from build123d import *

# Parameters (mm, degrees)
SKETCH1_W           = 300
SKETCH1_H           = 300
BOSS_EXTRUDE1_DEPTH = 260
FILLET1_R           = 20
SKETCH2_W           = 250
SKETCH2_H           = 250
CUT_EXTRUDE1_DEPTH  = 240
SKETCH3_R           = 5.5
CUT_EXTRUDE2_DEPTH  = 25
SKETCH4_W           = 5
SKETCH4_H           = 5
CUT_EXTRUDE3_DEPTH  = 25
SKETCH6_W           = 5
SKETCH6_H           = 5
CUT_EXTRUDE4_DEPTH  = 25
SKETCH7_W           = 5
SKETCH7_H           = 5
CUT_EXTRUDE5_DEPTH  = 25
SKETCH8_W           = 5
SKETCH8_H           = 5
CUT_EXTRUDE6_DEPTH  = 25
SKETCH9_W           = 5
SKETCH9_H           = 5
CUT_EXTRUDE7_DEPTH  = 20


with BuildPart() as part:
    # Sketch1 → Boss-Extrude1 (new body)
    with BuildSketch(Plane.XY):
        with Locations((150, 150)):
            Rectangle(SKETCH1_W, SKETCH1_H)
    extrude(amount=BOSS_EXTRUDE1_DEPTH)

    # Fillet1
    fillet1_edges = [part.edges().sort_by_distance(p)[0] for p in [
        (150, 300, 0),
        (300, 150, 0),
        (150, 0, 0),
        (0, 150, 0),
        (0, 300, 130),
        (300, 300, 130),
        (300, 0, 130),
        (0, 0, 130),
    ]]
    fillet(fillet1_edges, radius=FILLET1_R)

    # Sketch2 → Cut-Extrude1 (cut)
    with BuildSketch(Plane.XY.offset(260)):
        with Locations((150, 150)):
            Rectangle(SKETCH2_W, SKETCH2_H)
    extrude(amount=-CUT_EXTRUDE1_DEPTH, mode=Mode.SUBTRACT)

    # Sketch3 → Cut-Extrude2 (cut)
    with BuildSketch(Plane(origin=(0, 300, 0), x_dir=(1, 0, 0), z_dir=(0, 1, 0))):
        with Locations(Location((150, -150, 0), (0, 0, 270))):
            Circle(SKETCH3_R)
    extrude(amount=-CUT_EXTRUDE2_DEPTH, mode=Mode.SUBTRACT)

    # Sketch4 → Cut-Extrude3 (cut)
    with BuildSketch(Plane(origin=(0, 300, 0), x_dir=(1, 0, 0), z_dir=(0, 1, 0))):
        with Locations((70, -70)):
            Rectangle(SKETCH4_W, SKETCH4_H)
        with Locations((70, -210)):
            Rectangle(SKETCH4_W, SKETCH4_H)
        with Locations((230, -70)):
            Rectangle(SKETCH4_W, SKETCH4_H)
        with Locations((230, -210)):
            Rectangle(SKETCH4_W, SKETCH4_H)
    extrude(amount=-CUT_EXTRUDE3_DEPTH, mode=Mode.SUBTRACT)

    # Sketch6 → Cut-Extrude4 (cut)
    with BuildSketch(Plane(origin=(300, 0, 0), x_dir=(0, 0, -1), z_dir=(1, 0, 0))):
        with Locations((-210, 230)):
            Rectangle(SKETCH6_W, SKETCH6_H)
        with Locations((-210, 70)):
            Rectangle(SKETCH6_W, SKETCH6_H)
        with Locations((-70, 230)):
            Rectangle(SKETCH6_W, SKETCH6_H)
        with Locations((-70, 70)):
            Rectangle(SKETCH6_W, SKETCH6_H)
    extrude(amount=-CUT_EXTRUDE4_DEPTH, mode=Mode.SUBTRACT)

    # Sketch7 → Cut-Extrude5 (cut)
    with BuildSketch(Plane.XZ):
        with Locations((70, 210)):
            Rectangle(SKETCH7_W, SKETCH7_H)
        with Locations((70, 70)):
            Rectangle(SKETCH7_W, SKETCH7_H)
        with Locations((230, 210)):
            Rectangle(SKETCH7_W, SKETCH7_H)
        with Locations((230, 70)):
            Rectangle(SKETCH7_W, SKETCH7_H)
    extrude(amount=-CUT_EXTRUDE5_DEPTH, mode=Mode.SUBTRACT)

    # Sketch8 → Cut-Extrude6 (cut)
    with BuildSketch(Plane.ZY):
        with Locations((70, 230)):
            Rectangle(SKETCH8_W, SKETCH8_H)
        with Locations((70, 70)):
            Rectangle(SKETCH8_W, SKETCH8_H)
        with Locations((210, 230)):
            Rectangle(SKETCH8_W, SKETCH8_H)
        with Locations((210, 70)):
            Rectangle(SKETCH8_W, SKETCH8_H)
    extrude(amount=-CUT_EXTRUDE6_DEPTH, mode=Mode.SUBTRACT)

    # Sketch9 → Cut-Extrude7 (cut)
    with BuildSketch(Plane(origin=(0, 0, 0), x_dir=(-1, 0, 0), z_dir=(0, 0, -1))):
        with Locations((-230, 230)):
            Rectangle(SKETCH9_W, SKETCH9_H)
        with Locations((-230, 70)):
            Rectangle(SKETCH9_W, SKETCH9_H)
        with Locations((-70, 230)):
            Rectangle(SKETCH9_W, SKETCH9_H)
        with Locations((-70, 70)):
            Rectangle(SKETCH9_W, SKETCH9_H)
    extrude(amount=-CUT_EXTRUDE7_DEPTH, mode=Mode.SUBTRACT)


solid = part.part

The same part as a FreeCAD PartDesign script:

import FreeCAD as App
import Part
import Sketcher

V = App.Vector


def edges_at(feature, points):
    """Names of the edges that pass closest to the given points."""
    edges = feature.Shape.Edges
    near = lambda p: min(range(len(edges)), key=lambda i: edges[i].distToShape(Part.Vertex(*p))[0])
    return sorted({f"Edge{near(p) + 1}" for p in points})

doc = App.newDocument("Part")
body = doc.addObject("PartDesign::Body", "Body")

# Sketch on XY plane
sketch1 = body.newObject("Sketcher::SketchObject", "Sketch")
sketch1.AttachmentSupport = (doc.getObject("XY_Plane"), [""])
sketch1.MapMode = "FlatFace"
sketch1.addGeometry([
    Part.LineSegment(V(0, 300, 0), V(0, 0, 0)),
    Part.LineSegment(V(0, 0, 0), V(300, 0, 0)),
    Part.LineSegment(V(300, 0, 0), V(300, 300, 0)),
    Part.LineSegment(V(300, 300, 0), V(0, 300, 0)),
], False)
sketch1.addConstraint([
    Sketcher.Constraint("Coincident", 0, 2, 1, 1),
    Sketcher.Constraint("Coincident", 1, 2, 2, 1),
    Sketcher.Constraint("Coincident", 2, 2, 3, 1),
    Sketcher.Constraint("Coincident", 3, 2, 0, 1),
    Sketcher.Constraint("Vertical", 0),
    Sketcher.Constraint("Horizontal", 1),
    Sketcher.Constraint("Vertical", 2),
    Sketcher.Constraint("Horizontal", 3),
    Sketcher.Constraint("Coincident", 0, 2, -1, 1),
    Sketcher.Constraint("Equal", 3, 0),
    Sketcher.Constraint("DistanceX", 1, 1, 1, 2, 300.0),
])
pad1 = body.newObject("PartDesign::Pad", "Pad")
pad1.Profile = sketch1
pad1.Length = 260
doc.recompute()

fillet = body.newObject("PartDesign::Fillet", "Fillet")
fillet.Base = (pad1, edges_at(pad1, [
    (150, 300, 0),
    (300, 150, 0),
    (150, 0, 0),
    (0, 150, 0),
    (0, 300, 130),
    (300, 300, 130),
    (300, 0, 130),
    (0, 0, 130),
]))
fillet.Radius = 20

# Sketch on XY plane
sketch2 = body.newObject("Sketcher::SketchObject", "Sketch001")
sketch2.AttachmentSupport = (doc.getObject("XY_Plane"), [""])
sketch2.MapMode = "FlatFace"
sketch2.AttachmentOffset = App.Placement(V(0, 0, 260), App.Rotation())
sketch2.addGeometry([
    Part.LineSegment(V(25, 275, 0), V(25, 25, 0)),
    Part.LineSegment(V(25, 25, 0), V(275, 25, 0)),
    Part.LineSegment(V(275, 25, 0), V(275, 275, 0)),
    Part.LineSegment(V(275, 275, 0), V(25, 275, 0)),
], False)
sketch2.addConstraint([
    Sketcher.Constraint("Coincident", 0, 2, 1, 1),
    Sketcher.Constraint("Coincident", 1, 2, 2, 1),
    Sketcher.Constraint("Coincident", 2, 2, 3, 1),
    Sketcher.Constraint("Coincident", 3, 2, 0, 1),
    Sketcher.Constraint("Vertical", 0),
    Sketcher.Constraint("Horizontal", 1),
    Sketcher.Constraint("Vertical", 2),
    Sketcher.Constraint("Horizontal", 3),
    Sketcher.Constraint("Equal", 3, 0),
    Sketcher.Constraint("DistanceX", 1, 1, 1, 2, 250.0),
    Sketcher.Constraint("DistanceX", -1, 1, 0, 2, 25.0),
    Sketcher.Constraint("DistanceY", -1, 1, 0, 2, 25.0),
])
pocket1 = body.newObject("PartDesign::Pocket", "Pocket")
pocket1.Profile = sketch2
pocket1.Length = 240

# Sketch on XZ plane
sketch3 = body.newObject("Sketcher::SketchObject", "Sketch002")
sketch3.AttachmentSupport = (doc.getObject("XZ_Plane"), [""])
sketch3.MapMode = "FlatFace"
sketch3.AttachmentOffset = App.Placement(V(0, 0, -300), App.Rotation())
sketch3.addGeometry(Part.Circle(V(150, 150, 0), V(0, 0, 1), 6), False)
sketch3.addConstraint([
    Sketcher.Constraint("Diameter", 0, 11.0),
    Sketcher.Constraint("DistanceX", -1, 1, 0, 3, 150.0),
    Sketcher.Constraint("DistanceY", -1, 1, 0, 3, 150.0),
])
pocket2 = body.newObject("PartDesign::Pocket", "Pocket001")
pocket2.Profile = sketch3
pocket2.Length = 25
pocket2.Reversed = True

# Sketch on XZ plane
sketch4 = body.newObject("Sketcher::SketchObject", "Sketch003")
sketch4.AttachmentSupport = (doc.getObject("XZ_Plane"), [""])
sketch4.MapMode = "FlatFace"
sketch4.AttachmentOffset = App.Placement(V(0, 0, -300), App.Rotation())
sketch4.addGeometry([
    Part.LineSegment(V(68, 68, 0), V(68, 72, 0)),  # 0
    Part.LineSegment(V(68, 72, 0), V(72, 72, 0)),  # 1
    Part.LineSegment(V(72, 72, 0), V(72, 68, 0)),  # 2
    Part.LineSegment(V(72, 68, 0), V(68, 68, 0)),  # 3
    Part.LineSegment(V(68, 208, 0), V(68, 212, 0)),  # 4
    Part.LineSegment(V(68, 212, 0), V(72, 212, 0)),  # 5
    Part.LineSegment(V(72, 212, 0), V(72, 208, 0)),  # 6
    Part.LineSegment(V(72, 208, 0), V(68, 208, 0)),  # 7
    Part.LineSegment(V(228, 68, 0), V(228, 72, 0)),  # 8
    Part.LineSegment(V(228, 72, 0), V(232, 72, 0)),  # 9
    Part.LineSegment(V(232, 72, 0), V(232, 68, 0)),  # 10
    Part.LineSegment(V(232, 68, 0), V(228, 68, 0)),  # 11
    Part.LineSegment(V(228, 208, 0), V(228, 212, 0)),  # 12
    Part.LineSegment(V(228, 212, 0), V(232, 212, 0)),  # 13
    Part.LineSegment(V(232, 212, 0), V(232, 208, 0)),  # 14
    Part.LineSegment(V(232, 208, 0), V(228, 208, 0)),  # 15
], False)
sketch4.addConstraint([
    Sketcher.Constraint("Coincident", 0, 2, 1, 1),
    Sketcher.Constraint("Coincident", 1, 2, 2, 1),
    Sketcher.Constraint("Coincident", 2, 2, 3, 1),
    Sketcher.Constraint("Coincident", 3, 2, 0, 1),
    Sketcher.Constraint("Coincident", 4, 2, 5, 1),
    Sketcher.Constraint("Coincident", 5, 2, 6, 1),
    Sketcher.Constraint("Coincident", 6, 2, 7, 1),
    Sketcher.Constraint("Coincident", 7, 2, 4, 1),
    Sketcher.Constraint("Coincident", 8, 2, 9, 1),
    Sketcher.Constraint("Coincident", 9, 2, 10, 1),
    Sketcher.Constraint("Coincident", 10, 2, 11, 1),
    Sketcher.Constraint("Coincident", 11, 2, 8, 1),
    Sketcher.Constraint("Coincident", 12, 2, 13, 1),
    Sketcher.Constraint("Coincident", 13, 2, 14, 1),
    Sketcher.Constraint("Coincident", 14, 2, 15, 1),
    Sketcher.Constraint("Coincident", 15, 2, 12, 1),
    Sketcher.Constraint("Vertical", 0),
    Sketcher.Constraint("Horizontal", 1),
    Sketcher.Constraint("Vertical", 2),
    Sketcher.Constraint("Horizontal", 3),
    Sketcher.Constraint("Vertical", 4),
    Sketcher.Constraint("Horizontal", 5),
    Sketcher.Constraint("Vertical", 6),
    Sketcher.Constraint("Horizontal", 7),
    Sketcher.Constraint("Vertical", 8),
    Sketcher.Constraint("Horizontal", 9),
    Sketcher.Constraint("Vertical", 10),
    Sketcher.Constraint("Horizontal", 11),
    Sketcher.Constraint("Vertical", 12),
    Sketcher.Constraint("Horizontal", 13),
    Sketcher.Constraint("Vertical", 14),
    Sketcher.Constraint("Horizontal", 15),
    Sketcher.Constraint("Horizontal", 1, 2, 8, 2),
    Sketcher.Constraint("Horizontal", 3, 2, 10, 2),
    Sketcher.Constraint("Horizontal", 5, 2, 12, 2),
    Sketcher.Constraint("Horizontal", 7, 2, 14, 2),
    Sketcher.Constraint("Vertical", 3, 2, 4, 2),
    Sketcher.Constraint("Vertical", 2, 2, 5, 2),
    Sketcher.Constraint("Vertical", 11, 2, 12, 2),
    Sketcher.Constraint("Vertical", 10, 2, 13, 2),
    Sketcher.Constraint("Equal", 7, 9),
    Sketcher.Constraint("Equal", 15, 0),
    Sketcher.Constraint("Equal", 2, 4),
    Sketcher.Constraint("DistanceX", 1, 1, 1, 2, 5.0),
    Sketcher.Constraint("DistanceY", 0, 2, 4, 2, 140.0),
    Sketcher.Constraint("DistanceX", 1, 2, 8, 2, 155.0),
    Sketcher.Constraint("DistanceX", -1, 1, 0, 2, 67.5),
    Sketcher.Constraint("DistanceY", -1, 1, 0, 2, 72.5),
])
pocket3 = body.newObject("PartDesign::Pocket", "Pocket002")
pocket3.Profile = sketch4
pocket3.Length = 25
pocket3.Reversed = True

# Sketch on YZ plane
sketch5 = body.newObject("Sketcher::SketchObject", "Sketch004")
sketch5.AttachmentSupport = (doc.getObject("YZ_Plane"), [""])
sketch5.MapMode = "FlatFace"
sketch5.AttachmentOffset = App.Placement(V(0, 0, 300), App.Rotation())
sketch5.addGeometry([
    Part.LineSegment(V(232, 212, 0), V(228, 212, 0)),  # 0
    Part.LineSegment(V(228, 212, 0), V(228, 208, 0)),  # 1
    Part.LineSegment(V(228, 208, 0), V(232, 208, 0)),  # 2
    Part.LineSegment(V(232, 208, 0), V(232, 212, 0)),  # 3
    Part.LineSegment(V(72, 212, 0), V(68, 212, 0)),  # 4
    Part.LineSegment(V(68, 212, 0), V(68, 208, 0)),  # 5
    Part.LineSegment(V(68, 208, 0), V(72, 208, 0)),  # 6
    Part.LineSegment(V(72, 208, 0), V(72, 212, 0)),  # 7
    Part.LineSegment(V(232, 72, 0), V(228, 72, 0)),  # 8
    Part.LineSegment(V(228, 72, 0), V(228, 68, 0)),  # 9
    Part.LineSegment(V(228, 68, 0), V(232, 68, 0)),  # 10
    Part.LineSegment(V(232, 68, 0), V(232, 72, 0)),  # 11
    Part.LineSegment(V(72, 72, 0), V(68, 72, 0)),  # 12
    Part.LineSegment(V(68, 72, 0), V(68, 68, 0)),  # 13
    Part.LineSegment(V(68, 68, 0), V(72, 68, 0)),  # 14
    Part.LineSegment(V(72, 68, 0), V(72, 72, 0)),  # 15
], False)
sketch5.addConstraint([
    Sketcher.Constraint("Coincident", 0, 2, 1, 1),
    Sketcher.Constraint("Coincident", 1, 2, 2, 1),
    Sketcher.Constraint("Coincident", 2, 2, 3, 1),
    Sketcher.Constraint("Coincident", 3, 2, 0, 1),
    Sketcher.Constraint("Coincident", 4, 2, 5, 1),
    Sketcher.Constraint("Coincident", 5, 2, 6, 1),
    Sketcher.Constraint("Coincident", 6, 2, 7, 1),
    Sketcher.Constraint("Coincident", 7, 2, 4, 1),
    Sketcher.Constraint("Coincident", 8, 2, 9, 1),
    Sketcher.Constraint("Coincident", 9, 2, 10, 1),
    Sketcher.Constraint("Coincident", 10, 2, 11, 1),
    Sketcher.Constraint("Coincident", 11, 2, 8, 1),
    Sketcher.Constraint("Coincident", 12, 2, 13, 1),
    Sketcher.Constraint("Coincident", 13, 2, 14, 1),
    Sketcher.Constraint("Coincident", 14, 2, 15, 1),
    Sketcher.Constraint("Coincident", 15, 2, 12, 1),
    Sketcher.Constraint("Horizontal", 0),
    Sketcher.Constraint("Vertical", 1),
    Sketcher.Constraint("Horizontal", 2),
    Sketcher.Constraint("Vertical", 3),
    Sketcher.Constraint("Horizontal", 4),
    Sketcher.Constraint("Vertical", 5),
    Sketcher.Constraint("Horizontal", 6),
    Sketcher.Constraint("Vertical", 7),
    Sketcher.Constraint("Horizontal", 8),
    Sketcher.Constraint("Vertical", 9),
    Sketcher.Constraint("Horizontal", 10),
    Sketcher.Constraint("Vertical", 11),
    Sketcher.Constraint("Horizontal", 12),
    Sketcher.Constraint("Vertical", 13),
    Sketcher.Constraint("Horizontal", 14),
    Sketcher.Constraint("Vertical", 15),
    Sketcher.Constraint("Horizontal", 3, 2, 4, 2),
    Sketcher.Constraint("Horizontal", 2, 2, 5, 2),
    Sketcher.Constraint("Horizontal", 11, 2, 12, 2),
    Sketcher.Constraint("Horizontal", 10, 2, 13, 2),
    Sketcher.Constraint("Vertical", 1, 2, 8, 2),
    Sketcher.Constraint("Vertical", 3, 2, 10, 2),
    Sketcher.Constraint("Vertical", 5, 2, 12, 2),
    Sketcher.Constraint("Vertical", 7, 2, 14, 2),
    Sketcher.Constraint("Equal", 2, 4),
    Sketcher.Constraint("Equal", 14, 1),
    Sketcher.Constraint("Equal", 7, 9),
    Sketcher.Constraint("DistanceX", 0, 2, 0, 1, 5.0),
    Sketcher.Constraint("DistanceX", 4, 2, 0, 2, 160.0),
    Sketcher.Constraint("DistanceY", 8, 2, 1, 2, 135.0),
    Sketcher.Constraint("DistanceX", -1, 1, 0, 2, 227.5),
    Sketcher.Constraint("DistanceY", -1, 1, 0, 2, 212.5),
])
pocket4 = body.newObject("PartDesign::Pocket", "Pocket003")
pocket4.Profile = sketch5
pocket4.Length = 25

# Sketch on XZ plane
sketch6 = body.newObject("Sketcher::SketchObject", "Sketch005")
sketch6.AttachmentSupport = (doc.getObject("XZ_Plane"), [""])
sketch6.MapMode = "FlatFace"
sketch6.addGeometry([
    Part.LineSegment(V(68, 212, 0), V(68, 208, 0)),  # 0
    Part.LineSegment(V(68, 208, 0), V(72, 208, 0)),  # 1
    Part.LineSegment(V(72, 208, 0), V(72, 212, 0)),  # 2
    Part.LineSegment(V(72, 212, 0), V(68, 212, 0)),  # 3
    Part.LineSegment(V(68, 72, 0), V(68, 68, 0)),  # 4
    Part.LineSegment(V(68, 68, 0), V(72, 68, 0)),  # 5
    Part.LineSegment(V(72, 68, 0), V(72, 72, 0)),  # 6
    Part.LineSegment(V(72, 72, 0), V(68, 72, 0)),  # 7
    Part.LineSegment(V(228, 212, 0), V(228, 208, 0)),  # 8
    Part.LineSegment(V(228, 208, 0), V(232, 208, 0)),  # 9
    Part.LineSegment(V(232, 208, 0), V(232, 212, 0)),  # 10
    Part.LineSegment(V(232, 212, 0), V(228, 212, 0)),  # 11
    Part.LineSegment(V(228, 72, 0), V(228, 68, 0)),  # 12
    Part.LineSegment(V(228, 68, 0), V(232, 68, 0)),  # 13
    Part.LineSegment(V(232, 68, 0), V(232, 72, 0)),  # 14
    Part.LineSegment(V(232, 72, 0), V(228, 72, 0)),  # 15
], False)
sketch6.addConstraint([
    Sketcher.Constraint("Coincident", 0, 2, 1, 1),
    Sketcher.Constraint("Coincident", 1, 2, 2, 1),
    Sketcher.Constraint("Coincident", 2, 2, 3, 1),
    Sketcher.Constraint("Coincident", 3, 2, 0, 1),
    Sketcher.Constraint("Coincident", 4, 2, 5, 1),
    Sketcher.Constraint("Coincident", 5, 2, 6, 1),
    Sketcher.Constraint("Coincident", 6, 2, 7, 1),
    Sketcher.Constraint("Coincident", 7, 2, 4, 1),
    Sketcher.Constraint("Coincident", 8, 2, 9, 1),
    Sketcher.Constraint("Coincident", 9, 2, 10, 1),
    Sketcher.Constraint("Coincident", 10, 2, 11, 1),
    Sketcher.Constraint("Coincident", 11, 2, 8, 1),
    Sketcher.Constraint("Coincident", 12, 2, 13, 1),
    Sketcher.Constraint("Coincident", 13, 2, 14, 1),
    Sketcher.Constraint("Coincident", 14, 2, 15, 1),
    Sketcher.Constraint("Coincident", 15, 2, 12, 1),
    Sketcher.Constraint("Vertical", 0),
    Sketcher.Constraint("Horizontal", 1),
    Sketcher.Constraint("Vertical", 2),
    Sketcher.Constraint("Horizontal", 3),
    Sketcher.Constraint("Vertical", 4),
    Sketcher.Constraint("Horizontal", 5),
    Sketcher.Constraint("Vertical", 6),
    Sketcher.Constraint("Horizontal", 7),
    Sketcher.Constraint("Vertical", 8),
    Sketcher.Constraint("Horizontal", 9),
    Sketcher.Constraint("Vertical", 10),
    Sketcher.Constraint("Horizontal", 11),
    Sketcher.Constraint("Vertical", 12),
    Sketcher.Constraint("Horizontal", 13),
    Sketcher.Constraint("Vertical", 14),
    Sketcher.Constraint("Horizontal", 15),
    Sketcher.Constraint("Horizontal", 1, 2, 8, 2),
    Sketcher.Constraint("Horizontal", 3, 2, 10, 2),
    Sketcher.Constraint("Horizontal", 5, 2, 12, 2),
    Sketcher.Constraint("Horizontal", 7, 2, 14, 2),
    Sketcher.Constraint("Vertical", 3, 2, 4, 2),
    Sketcher.Constraint("Vertical", 2, 2, 5, 2),
    Sketcher.Constraint("Vertical", 11, 2, 12, 2),
    Sketcher.Constraint("Vertical", 10, 2, 13, 2),
    Sketcher.Constraint("Equal", 7, 9),
    Sketcher.Constraint("Equal", 15, 0),
    Sketcher.Constraint("Equal", 2, 4),
    Sketcher.Constraint("DistanceX", 1, 1, 1, 2, 5.0),
    Sketcher.Constraint("DistanceY", 4, 2, 0, 2, 140.0),
    Sketcher.Constraint("DistanceX", 1, 2, 8, 2, 155.0),
    Sketcher.Constraint("DistanceX", -1, 1, 0, 2, 67.5),
    Sketcher.Constraint("DistanceY", -1, 1, 0, 2, 207.5),
])
pocket5 = body.newObject("PartDesign::Pocket", "Pocket004")
pocket5.Profile = sketch6
pocket5.Length = 25

# Sketch on YZ plane
sketch7 = body.newObject("Sketcher::SketchObject", "Sketch006")
sketch7.AttachmentSupport = (doc.getObject("YZ_Plane"), [""])
sketch7.MapMode = "FlatFace"
sketch7.addGeometry([
    Part.LineSegment(V(232, 68, 0), V(228, 68, 0)),  # 0
    Part.LineSegment(V(228, 68, 0), V(228, 72, 0)),  # 1
    Part.LineSegment(V(228, 72, 0), V(232, 72, 0)),  # 2
    Part.LineSegment(V(232, 72, 0), V(232, 68, 0)),  # 3
    Part.LineSegment(V(72, 68, 0), V(68, 68, 0)),  # 4
    Part.LineSegment(V(68, 68, 0), V(68, 72, 0)),  # 5
    Part.LineSegment(V(68, 72, 0), V(72, 72, 0)),  # 6
    Part.LineSegment(V(72, 72, 0), V(72, 68, 0)),  # 7
    Part.LineSegment(V(232, 208, 0), V(228, 208, 0)),  # 8
    Part.LineSegment(V(228, 208, 0), V(228, 212, 0)),  # 9
    Part.LineSegment(V(228, 212, 0), V(232, 212, 0)),  # 10
    Part.LineSegment(V(232, 212, 0), V(232, 208, 0)),  # 11
    Part.LineSegment(V(72, 208, 0), V(68, 208, 0)),  # 12
    Part.LineSegment(V(68, 208, 0), V(68, 212, 0)),  # 13
    Part.LineSegment(V(68, 212, 0), V(72, 212, 0)),  # 14
    Part.LineSegment(V(72, 212, 0), V(72, 208, 0)),  # 15
], False)
sketch7.addConstraint([
    Sketcher.Constraint("Coincident", 0, 2, 1, 1),
    Sketcher.Constraint("Coincident", 1, 2, 2, 1),
    Sketcher.Constraint("Coincident", 2, 2, 3, 1),
    Sketcher.Constraint("Coincident", 3, 2, 0, 1),
    Sketcher.Constraint("Coincident", 4, 2, 5, 1),
    Sketcher.Constraint("Coincident", 5, 2, 6, 1),
    Sketcher.Constraint("Coincident", 6, 2, 7, 1),
    Sketcher.Constraint("Coincident", 7, 2, 4, 1),
    Sketcher.Constraint("Coincident", 8, 2, 9, 1),
    Sketcher.Constraint("Coincident", 9, 2, 10, 1),
    Sketcher.Constraint("Coincident", 10, 2, 11, 1),
    Sketcher.Constraint("Coincident", 11, 2, 8, 1),
    Sketcher.Constraint("Coincident", 12, 2, 13, 1),
    Sketcher.Constraint("Coincident", 13, 2, 14, 1),
    Sketcher.Constraint("Coincident", 14, 2, 15, 1),
    Sketcher.Constraint("Coincident", 15, 2, 12, 1),
    Sketcher.Constraint("Horizontal", 0),
    Sketcher.Constraint("Vertical", 1),
    Sketcher.Constraint("Horizontal", 2),
    Sketcher.Constraint("Vertical", 3),
    Sketcher.Constraint("Horizontal", 4),
    Sketcher.Constraint("Vertical", 5),
    Sketcher.Constraint("Horizontal", 6),
    Sketcher.Constraint("Vertical", 7),
    Sketcher.Constraint("Horizontal", 8),
    Sketcher.Constraint("Vertical", 9),
    Sketcher.Constraint("Horizontal", 10),
    Sketcher.Constraint("Vertical", 11),
    Sketcher.Constraint("Horizontal", 12),
    Sketcher.Constraint("Vertical", 13),
    Sketcher.Constraint("Horizontal", 14),
    Sketcher.Constraint("Vertical", 15),
    Sketcher.Constraint("Horizontal", 3, 2, 4, 2),
    Sketcher.Constraint("Horizontal", 2, 2, 5, 2),
    Sketcher.Constraint("Horizontal", 11, 2, 12, 2),
    Sketcher.Constraint("Horizontal", 10, 2, 13, 2),
    Sketcher.Constraint("Vertical", 1, 2, 8, 2),
    Sketcher.Constraint("Vertical", 3, 2, 10, 2),
    Sketcher.Constraint("Vertical", 5, 2, 12, 2),
    Sketcher.Constraint("Vertical", 7, 2, 14, 2),
    Sketcher.Constraint("Equal", 2, 4),
    Sketcher.Constraint("Equal", 14, 1),
    Sketcher.Constraint("Equal", 7, 9),
    Sketcher.Constraint("DistanceX", 0, 2, 0, 1, 5.0),
    Sketcher.Constraint("DistanceX", 4, 2, 0, 2, 160.0),
    Sketcher.Constraint("DistanceY", 1, 2, 8, 2, 135.0),
    Sketcher.Constraint("DistanceX", -1, 1, 0, 2, 227.5),
    Sketcher.Constraint("DistanceY", -1, 1, 0, 2, 67.5),
])
pocket6 = body.newObject("PartDesign::Pocket", "Pocket005")
pocket6.Profile = sketch7
pocket6.Length = 25
pocket6.Reversed = True

# Sketch on XY plane
sketch8 = body.newObject("Sketcher::SketchObject", "Sketch007")
sketch8.AttachmentSupport = (doc.getObject("XY_Plane"), [""])
sketch8.MapMode = "FlatFace"
sketch8.addGeometry([
    Part.LineSegment(V(232, 232, 0), V(232, 228, 0)),  # 0
    Part.LineSegment(V(232, 228, 0), V(228, 228, 0)),  # 1
    Part.LineSegment(V(228, 228, 0), V(228, 232, 0)),  # 2
    Part.LineSegment(V(228, 232, 0), V(232, 232, 0)),  # 3
    Part.LineSegment(V(232, 72, 0), V(232, 68, 0)),  # 4
    Part.LineSegment(V(232, 68, 0), V(228, 68, 0)),  # 5
    Part.LineSegment(V(228, 68, 0), V(228, 72, 0)),  # 6
    Part.LineSegment(V(228, 72, 0), V(232, 72, 0)),  # 7
    Part.LineSegment(V(72, 232, 0), V(72, 228, 0)),  # 8
    Part.LineSegment(V(72, 228, 0), V(68, 228, 0)),  # 9
    Part.LineSegment(V(68, 228, 0), V(68, 232, 0)),  # 10
    Part.LineSegment(V(68, 232, 0), V(72, 232, 0)),  # 11
    Part.LineSegment(V(72, 72, 0), V(72, 68, 0)),  # 12
    Part.LineSegment(V(72, 68, 0), V(68, 68, 0)),  # 13
    Part.LineSegment(V(68, 68, 0), V(68, 72, 0)),  # 14
    Part.LineSegment(V(68, 72, 0), V(72, 72, 0)),  # 15
], False)
sketch8.addConstraint([
    Sketcher.Constraint("Coincident", 0, 2, 1, 1),
    Sketcher.Constraint("Coincident", 1, 2, 2, 1),
    Sketcher.Constraint("Coincident", 2, 2, 3, 1),
    Sketcher.Constraint("Coincident", 3, 2, 0, 1),
    Sketcher.Constraint("Coincident", 4, 2, 5, 1),
    Sketcher.Constraint("Coincident", 5, 2, 6, 1),
    Sketcher.Constraint("Coincident", 6, 2, 7, 1),
    Sketcher.Constraint("Coincident", 7, 2, 4, 1),
    Sketcher.Constraint("Coincident", 8, 2, 9, 1),
    Sketcher.Constraint("Coincident", 9, 2, 10, 1),
    Sketcher.Constraint("Coincident", 10, 2, 11, 1),
    Sketcher.Constraint("Coincident", 11, 2, 8, 1),
    Sketcher.Constraint("Coincident", 12, 2, 13, 1),
    Sketcher.Constraint("Coincident", 13, 2, 14, 1),
    Sketcher.Constraint("Coincident", 14, 2, 15, 1),
    Sketcher.Constraint("Coincident", 15, 2, 12, 1),
    Sketcher.Constraint("Vertical", 0),
    Sketcher.Constraint("Horizontal", 1),
    Sketcher.Constraint("Vertical", 2),
    Sketcher.Constraint("Horizontal", 3),
    Sketcher.Constraint("Vertical", 4),
    Sketcher.Constraint("Horizontal", 5),
    Sketcher.Constraint("Vertical", 6),
    Sketcher.Constraint("Horizontal", 7),
    Sketcher.Constraint("Vertical", 8),
    Sketcher.Constraint("Horizontal", 9),
    Sketcher.Constraint("Vertical", 10),
    Sketcher.Constraint("Horizontal", 11),
    Sketcher.Constraint("Vertical", 12),
    Sketcher.Constraint("Horizontal", 13),
    Sketcher.Constraint("Vertical", 14),
    Sketcher.Constraint("Horizontal", 15),
    Sketcher.Constraint("Horizontal", 1, 2, 8, 2),
    Sketcher.Constraint("Horizontal", 3, 2, 10, 2),
    Sketcher.Constraint("Horizontal", 5, 2, 12, 2),
    Sketcher.Constraint("Horizontal", 7, 2, 14, 2),
    Sketcher.Constraint("Vertical", 3, 2, 4, 2),
    Sketcher.Constraint("Vertical", 2, 2, 5, 2),
    Sketcher.Constraint("Vertical", 11, 2, 12, 2),
    Sketcher.Constraint("Vertical", 10, 2, 13, 2),
    Sketcher.Constraint("Equal", 7, 9),
    Sketcher.Constraint("Equal", 15, 0),
    Sketcher.Constraint("Equal", 2, 4),
    Sketcher.Constraint("DistanceX", 1, 2, 1, 1, 5.0),
    Sketcher.Constraint("DistanceY", 4, 2, 0, 2, 160.0),
    Sketcher.Constraint("DistanceX", 8, 2, 1, 2, 155.0),
    Sketcher.Constraint("DistanceX", -1, 1, 0, 2, 232.5),
    Sketcher.Constraint("DistanceY", -1, 1, 0, 2, 227.5),
])
pocket7 = body.newObject("PartDesign::Pocket", "Pocket006")
pocket7.Profile = sketch8
pocket7.Length = 20
pocket7.Reversed = True

doc.recompute()
